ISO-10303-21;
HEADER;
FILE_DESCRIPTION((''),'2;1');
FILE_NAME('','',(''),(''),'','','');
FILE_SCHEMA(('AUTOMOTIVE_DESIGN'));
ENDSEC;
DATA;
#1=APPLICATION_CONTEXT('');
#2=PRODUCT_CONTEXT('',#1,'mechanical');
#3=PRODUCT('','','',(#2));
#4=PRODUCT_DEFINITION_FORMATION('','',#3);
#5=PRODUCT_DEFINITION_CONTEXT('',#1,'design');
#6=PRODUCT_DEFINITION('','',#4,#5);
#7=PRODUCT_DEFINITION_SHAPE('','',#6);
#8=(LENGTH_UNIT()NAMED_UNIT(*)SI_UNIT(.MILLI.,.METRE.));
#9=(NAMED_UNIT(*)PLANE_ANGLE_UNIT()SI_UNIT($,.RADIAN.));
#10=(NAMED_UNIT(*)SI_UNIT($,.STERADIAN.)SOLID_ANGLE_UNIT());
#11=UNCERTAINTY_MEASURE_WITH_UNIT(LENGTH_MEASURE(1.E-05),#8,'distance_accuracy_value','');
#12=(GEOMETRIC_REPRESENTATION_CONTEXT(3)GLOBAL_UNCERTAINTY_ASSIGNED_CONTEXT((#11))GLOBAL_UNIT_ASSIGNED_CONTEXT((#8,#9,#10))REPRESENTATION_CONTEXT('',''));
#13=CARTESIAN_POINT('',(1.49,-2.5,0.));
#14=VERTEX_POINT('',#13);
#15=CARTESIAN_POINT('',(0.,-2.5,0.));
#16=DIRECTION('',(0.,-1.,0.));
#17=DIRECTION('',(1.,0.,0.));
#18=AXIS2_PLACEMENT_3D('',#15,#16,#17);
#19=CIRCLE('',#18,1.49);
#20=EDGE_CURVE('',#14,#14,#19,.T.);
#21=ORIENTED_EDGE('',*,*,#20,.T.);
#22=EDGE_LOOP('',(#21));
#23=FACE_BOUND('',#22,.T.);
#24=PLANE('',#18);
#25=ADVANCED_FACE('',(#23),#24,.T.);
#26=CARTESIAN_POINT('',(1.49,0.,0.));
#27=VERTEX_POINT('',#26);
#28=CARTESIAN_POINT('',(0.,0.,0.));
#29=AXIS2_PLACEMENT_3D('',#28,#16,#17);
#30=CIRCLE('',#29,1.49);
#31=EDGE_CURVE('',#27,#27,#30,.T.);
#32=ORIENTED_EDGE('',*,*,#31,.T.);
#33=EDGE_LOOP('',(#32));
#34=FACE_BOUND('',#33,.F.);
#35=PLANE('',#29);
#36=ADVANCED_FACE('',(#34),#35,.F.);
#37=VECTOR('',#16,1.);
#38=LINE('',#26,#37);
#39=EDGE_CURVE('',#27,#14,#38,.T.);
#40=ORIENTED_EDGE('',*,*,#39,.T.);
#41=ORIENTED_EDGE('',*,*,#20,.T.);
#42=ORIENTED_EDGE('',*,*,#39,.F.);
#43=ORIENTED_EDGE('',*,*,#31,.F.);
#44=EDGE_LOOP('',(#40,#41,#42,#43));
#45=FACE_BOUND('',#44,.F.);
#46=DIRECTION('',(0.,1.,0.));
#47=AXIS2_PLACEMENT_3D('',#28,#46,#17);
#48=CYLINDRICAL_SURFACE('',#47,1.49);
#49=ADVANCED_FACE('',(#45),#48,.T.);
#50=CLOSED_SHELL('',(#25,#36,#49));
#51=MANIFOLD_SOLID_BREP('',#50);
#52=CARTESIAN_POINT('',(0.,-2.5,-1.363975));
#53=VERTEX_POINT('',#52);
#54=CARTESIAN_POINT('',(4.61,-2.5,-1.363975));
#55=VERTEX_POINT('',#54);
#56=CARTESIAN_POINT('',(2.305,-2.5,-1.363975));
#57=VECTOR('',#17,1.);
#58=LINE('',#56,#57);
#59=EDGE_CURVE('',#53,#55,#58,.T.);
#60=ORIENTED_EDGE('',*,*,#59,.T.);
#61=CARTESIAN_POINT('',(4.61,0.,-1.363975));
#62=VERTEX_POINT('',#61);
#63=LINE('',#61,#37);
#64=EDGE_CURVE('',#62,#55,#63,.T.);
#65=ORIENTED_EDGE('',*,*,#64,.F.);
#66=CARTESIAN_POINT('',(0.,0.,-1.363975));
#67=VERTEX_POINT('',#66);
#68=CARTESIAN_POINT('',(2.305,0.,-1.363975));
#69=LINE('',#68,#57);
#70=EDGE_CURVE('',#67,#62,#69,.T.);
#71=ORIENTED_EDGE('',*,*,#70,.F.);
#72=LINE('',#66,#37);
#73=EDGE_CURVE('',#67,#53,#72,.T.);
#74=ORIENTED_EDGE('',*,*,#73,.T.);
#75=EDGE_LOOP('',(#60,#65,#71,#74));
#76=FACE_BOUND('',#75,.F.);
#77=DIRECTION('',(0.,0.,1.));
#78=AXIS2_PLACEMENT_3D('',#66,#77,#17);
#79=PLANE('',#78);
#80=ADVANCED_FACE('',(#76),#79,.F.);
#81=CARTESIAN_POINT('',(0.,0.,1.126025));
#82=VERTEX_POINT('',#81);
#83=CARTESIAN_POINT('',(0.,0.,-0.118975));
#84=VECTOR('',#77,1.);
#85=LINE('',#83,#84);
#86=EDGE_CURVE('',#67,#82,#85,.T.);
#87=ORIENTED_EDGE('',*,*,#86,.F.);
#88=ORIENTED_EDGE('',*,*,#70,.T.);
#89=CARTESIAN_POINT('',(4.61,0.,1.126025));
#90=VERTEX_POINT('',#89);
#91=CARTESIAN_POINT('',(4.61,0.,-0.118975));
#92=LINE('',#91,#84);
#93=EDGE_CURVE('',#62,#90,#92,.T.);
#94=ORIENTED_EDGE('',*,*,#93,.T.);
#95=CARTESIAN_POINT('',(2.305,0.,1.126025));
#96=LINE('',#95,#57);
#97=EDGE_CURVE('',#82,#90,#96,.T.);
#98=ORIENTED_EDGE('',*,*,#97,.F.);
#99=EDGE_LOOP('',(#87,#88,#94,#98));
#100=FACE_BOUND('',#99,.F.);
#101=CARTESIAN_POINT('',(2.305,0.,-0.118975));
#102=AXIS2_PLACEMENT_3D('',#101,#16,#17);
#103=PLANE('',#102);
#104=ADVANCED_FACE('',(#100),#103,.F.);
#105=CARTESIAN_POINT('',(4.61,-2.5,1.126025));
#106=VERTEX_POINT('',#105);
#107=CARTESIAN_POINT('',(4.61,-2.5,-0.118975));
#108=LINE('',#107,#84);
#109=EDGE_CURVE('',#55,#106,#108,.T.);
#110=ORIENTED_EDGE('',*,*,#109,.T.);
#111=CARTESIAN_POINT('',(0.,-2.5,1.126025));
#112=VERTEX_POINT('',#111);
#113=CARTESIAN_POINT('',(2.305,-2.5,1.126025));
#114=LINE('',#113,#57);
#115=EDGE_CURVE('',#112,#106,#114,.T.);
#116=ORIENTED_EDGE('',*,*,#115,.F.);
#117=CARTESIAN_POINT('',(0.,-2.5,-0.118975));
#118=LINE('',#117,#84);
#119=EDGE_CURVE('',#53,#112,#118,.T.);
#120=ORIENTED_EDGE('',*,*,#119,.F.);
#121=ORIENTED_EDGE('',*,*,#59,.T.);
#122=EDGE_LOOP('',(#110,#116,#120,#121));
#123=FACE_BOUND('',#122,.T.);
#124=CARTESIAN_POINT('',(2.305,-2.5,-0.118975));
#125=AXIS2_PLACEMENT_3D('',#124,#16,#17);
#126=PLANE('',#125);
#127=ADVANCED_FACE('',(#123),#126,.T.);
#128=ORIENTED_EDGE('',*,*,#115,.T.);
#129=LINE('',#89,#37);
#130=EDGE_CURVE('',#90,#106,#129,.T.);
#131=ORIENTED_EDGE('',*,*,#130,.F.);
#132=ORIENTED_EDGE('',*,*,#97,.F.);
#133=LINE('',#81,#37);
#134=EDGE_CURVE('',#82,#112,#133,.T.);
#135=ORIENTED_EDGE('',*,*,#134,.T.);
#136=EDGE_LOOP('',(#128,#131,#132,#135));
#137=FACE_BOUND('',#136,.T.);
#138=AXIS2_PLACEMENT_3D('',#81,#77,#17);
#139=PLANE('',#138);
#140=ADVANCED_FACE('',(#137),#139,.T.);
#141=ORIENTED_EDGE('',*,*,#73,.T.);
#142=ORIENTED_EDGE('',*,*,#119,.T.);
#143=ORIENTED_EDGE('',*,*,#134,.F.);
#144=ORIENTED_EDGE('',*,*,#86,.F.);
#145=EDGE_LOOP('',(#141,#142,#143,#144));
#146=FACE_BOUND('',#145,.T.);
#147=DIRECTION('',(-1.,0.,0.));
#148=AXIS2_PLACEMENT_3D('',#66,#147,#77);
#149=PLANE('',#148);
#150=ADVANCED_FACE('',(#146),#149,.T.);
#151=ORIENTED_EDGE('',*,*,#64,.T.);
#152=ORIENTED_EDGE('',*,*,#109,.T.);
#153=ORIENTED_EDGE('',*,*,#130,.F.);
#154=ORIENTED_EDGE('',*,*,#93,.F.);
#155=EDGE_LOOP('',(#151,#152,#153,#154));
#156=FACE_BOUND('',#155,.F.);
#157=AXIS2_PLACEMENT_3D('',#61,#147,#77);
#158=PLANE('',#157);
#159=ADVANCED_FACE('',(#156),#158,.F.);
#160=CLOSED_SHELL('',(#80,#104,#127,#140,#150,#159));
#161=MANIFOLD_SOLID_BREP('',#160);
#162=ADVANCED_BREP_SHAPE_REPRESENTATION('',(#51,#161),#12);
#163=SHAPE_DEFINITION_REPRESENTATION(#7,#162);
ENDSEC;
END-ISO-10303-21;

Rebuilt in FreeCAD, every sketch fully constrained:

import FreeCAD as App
import Part
import Sketcher

doc = App.newDocument("Part")
body = doc.addObject("PartDesign::Body", "Body")

# Sketch on XZ plane
sketch1 = body.newObject("Sketcher::SketchObject", "Sketch")
sketch1.AttachmentSupport = (doc.getObject("XZ_Plane"), [""])
sketch1.MapMode = "FlatFace"
sketch1.addGeometry([
    Part.Circle(App.Vector(0, 0, 0), App.Vector(0, 0, 1), 5.5),
    Part.Circle(App.Vector(0, 0, 0), App.Vector(0, 0, 1), 4),
], False)
sketch1.addConstraint([
    Sketcher.Constraint("Coincident", 0, 3, -1, 1),
    Sketcher.Constraint("Coincident", 1, 3, -1, 1),
    Sketcher.Constraint("Diameter", 0, 10.91),
    Sketcher.Constraint("Diameter", 1, 8.09),
])
pad1 = body.newObject("PartDesign::Pad", "Pad")
pad1.Profile = sketch1
pad1.Length = 1.8
body2 = doc.addObject("PartDesign::Body", "Body001")

# Sketch on XZ plane
sketch2 = body2.newObject("Sketcher::SketchObject", "Sketch001")
sketch2.AttachmentSupport = (doc.getObject("XZ_Plane001"), [""])
sketch2.MapMode = "FlatFace"
sketch2.addGeometry([
    Part.Circle(App.Vector(0, 0, 0), App.Vector(0, 0, 1), 2.6),
    Part.Circle(App.Vector(0, 0, 0), App.Vector(0, 0, 1), 1.7),
], False)
sketch2.addConstraint([
    Sketcher.Constraint("Coincident", 0, 3, -1, 1),
    Sketcher.Constraint("Coincident", 1, 3, -1, 1),
    Sketcher.Constraint("Diameter", 0, 5.25),
    Sketcher.Constraint("Diameter", 1, 3.37),
])
pad2 = body2.newObject("PartDesign::Pad", "Pad001")
pad2.Profile = sketch2
pad2.Length = 1.8
body3 = doc.addObject("PartDesign::Body", "Body002")

# Sketch on XZ plane
sketch3 = body3.newObject("Sketcher::SketchObject", "Sketch002")
sketch3.AttachmentSupport = (doc.getObject("XZ_Plane002"), [""])
sketch3.MapMode = "FlatFace"
sketch3.addGeometry(Part.Circle(App.Vector(0, 0, 0), App.Vector(0, 0, 1), 1.5), False)
sketch3.addConstraint([
    Sketcher.Constraint("Coincident", 0, 3, -1, 1),
    Sketcher.Constraint("Diameter", 0, 2.98),
])
pad3 = body3.newObject("PartDesign::Pad", "Pad002")
pad3.Profile = sketch3
pad3.Length = 2.5
body4 = doc.addObject("PartDesign::Body", "Body003")

# Sketch on XZ plane
sketch4 = body4.newObject("Sketcher::SketchObject", "Sketch003")
sketch4.AttachmentSupport = (doc.getObject("XZ_Plane003"), [""])
sketch4.MapMode = "FlatFace"
sketch4.addGeometry([
    Part.LineSegment(App.Vector(0, 1.1, 0), App.Vector(0, -1.4, 0)),
    Part.LineSegment(App.Vector(0, -1.4, 0), App.Vector(4.6, -1.4, 0)),
    Part.LineSegment(App.Vector(4.6, -1.4, 0), App.Vector(4.6, 1.1, 0)),
    Part.LineSegment(App.Vector(4.6, 1.1, 0), App.Vector(0, 1.1, 0)),
], False)
sketch4.addConstraint([
    Sketcher.Constraint("Coincident", 0, 2, 1, 1),
    Sketcher.Constraint("Coincident", 1, 2, 2, 1),
    Sketcher.Constraint("Coincident", 2, 2, 3, 1),
    Sketcher.Constraint("Coincident", 3, 2, 0, 1),
    Sketcher.Constraint("Vertical", 0),
    Sketcher.Constraint("Horizontal", 1),
    Sketcher.Constraint("Vertical", 2),
    Sketcher.Constraint("Horizontal", 3),
    Sketcher.Constraint("PointOnObject", 0, 2, -2),
    Sketcher.Constraint("DistanceX", 1, 1, 1, 2, 4.61),
    Sketcher.Constraint("DistanceY", 0, 2, 0, 1, 2.49),
    Sketcher.Constraint("DistanceY", 0, 2, -1, 1, 1.363975),
])
pad4 = body4.newObject("PartDesign::Pad", "Pad003")
pad4.Profile = sketch4
pad4.Length = 2.5
body.Visibility = False
body2.Visibility = False

doc.recompute()
